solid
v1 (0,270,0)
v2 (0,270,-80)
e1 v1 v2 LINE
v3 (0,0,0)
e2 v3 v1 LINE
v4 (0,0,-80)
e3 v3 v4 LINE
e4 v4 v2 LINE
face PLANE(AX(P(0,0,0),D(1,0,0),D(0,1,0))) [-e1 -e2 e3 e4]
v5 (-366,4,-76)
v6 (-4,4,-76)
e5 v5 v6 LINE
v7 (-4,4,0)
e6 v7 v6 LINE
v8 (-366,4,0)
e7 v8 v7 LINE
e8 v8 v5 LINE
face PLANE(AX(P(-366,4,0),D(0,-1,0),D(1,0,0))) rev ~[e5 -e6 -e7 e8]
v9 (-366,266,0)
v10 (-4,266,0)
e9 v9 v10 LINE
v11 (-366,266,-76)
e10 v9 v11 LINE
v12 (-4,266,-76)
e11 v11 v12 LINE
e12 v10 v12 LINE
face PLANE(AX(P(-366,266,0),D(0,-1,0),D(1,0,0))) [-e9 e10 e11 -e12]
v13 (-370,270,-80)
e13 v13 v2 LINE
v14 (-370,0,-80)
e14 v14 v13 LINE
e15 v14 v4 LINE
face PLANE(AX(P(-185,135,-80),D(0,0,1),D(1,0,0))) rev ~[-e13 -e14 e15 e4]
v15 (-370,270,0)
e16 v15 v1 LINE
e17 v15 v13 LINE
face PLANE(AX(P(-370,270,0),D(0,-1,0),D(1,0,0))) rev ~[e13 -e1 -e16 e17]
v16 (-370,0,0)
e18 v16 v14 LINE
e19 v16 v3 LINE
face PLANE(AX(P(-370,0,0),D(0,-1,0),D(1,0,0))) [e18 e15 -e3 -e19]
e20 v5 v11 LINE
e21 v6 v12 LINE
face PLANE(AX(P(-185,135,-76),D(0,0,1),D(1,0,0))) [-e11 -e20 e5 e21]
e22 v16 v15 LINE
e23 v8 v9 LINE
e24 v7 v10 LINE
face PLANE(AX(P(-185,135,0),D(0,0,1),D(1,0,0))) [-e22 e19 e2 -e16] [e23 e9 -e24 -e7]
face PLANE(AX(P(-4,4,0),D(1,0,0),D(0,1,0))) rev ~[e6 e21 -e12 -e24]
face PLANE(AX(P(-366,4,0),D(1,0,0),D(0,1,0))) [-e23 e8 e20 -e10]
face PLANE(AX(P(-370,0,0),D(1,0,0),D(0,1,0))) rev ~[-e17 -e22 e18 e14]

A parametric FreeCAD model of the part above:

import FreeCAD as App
import Part
import Sketcher

V = App.Vector
Q = App.Units.Quantity

doc = App.newDocument("Part")
params = doc.addObject("Spreadsheet::Sheet", "Params")
for row, (alias, value) in enumerate([
    ("sketch1_width", "370 mm"),
    ("sketch1_height", "270 mm"),
    ("pad1_length", "80 mm"),
    ("sketch2_width", "362 mm"),
    ("sketch2_height", "262 mm"),
    ("pocket1_length", "76 mm"),
], start=1):
    params.set(f"A{row}", alias)
    params.set(f"B{row}", "=" + value)
    params.setAlias(f"B{row}", alias)

body = doc.addObject("PartDesign::Body", "Body")

# Sketch on XY plane
sketch1 = doc.addObject("Sketcher::SketchObject", "Sketch")
body.addObject(sketch1)
sketch1.AttachmentSupport = (doc.XY_Plane, [""])
sketch1.MapMode = "FlatFace"
sketch1.addGeometry(Part.LineSegment(V(-370, 270, 0), V(-370, 0, 0)), False)
sketch1.addGeometry(Part.LineSegment(V(-370, 0, 0), V(0, 0, 0)), False)
sketch1.addGeometry(Part.LineSegment(V(0, 0, 0), V(0, 270, 0)), False)
sketch1.addGeometry(Part.LineSegment(V(0, 270, 0), V(-370, 270, 0)), False)
sketch1.addConstraint(Sketcher.Constraint("Coincident", 0, 2, 1, 1))
sketch1.addConstraint(Sketcher.Constraint("Coincident", 1, 2, 2, 1))
sketch1.addConstraint(Sketcher.Constraint("Coincident", 2, 2, 3, 1))
sketch1.addConstraint(Sketcher.Constraint("Coincident", 3, 2, 0, 1))
sketch1.addConstraint(Sketcher.Constraint("Vertical", 0))
sketch1.addConstraint(Sketcher.Constraint("Horizontal", 1))
sketch1.addConstraint(Sketcher.Constraint("Vertical", 2))
sketch1.addConstraint(Sketcher.Constraint("Horizontal", 3))
sketch1.addConstraint(Sketcher.Constraint("Coincident", 1, 2, -1, 1))
sketch1.addConstraint(Sketcher.Constraint("DistanceX", 1, 1, 1, 2, Q("370 mm")))
sketch1.addConstraint(Sketcher.Constraint("DistanceY", 0, 2, 0, 1, Q("270 mm")))
sketch1.setExpression("Constraints[9]", "Params.sketch1_width")
sketch1.setExpression("Constraints[10]", "Params.sketch1_height")
pad1 = doc.addObject("PartDesign::Pad", "Pad")
body.addObject(pad1)
pad1.Profile = sketch1
pad1.setExpression("Length", "Params.pad1_length")
pad1.Reversed = True

# Sketch on XY plane
sketch2 = doc.addObject("Sketcher::SketchObject", "Sketch001")
body.addObject(sketch2)
sketch2.AttachmentSupport = (doc.XY_Plane, [""])
sketch2.MapMode = "FlatFace"
sketch2.addGeometry(Part.LineSegment(V(-366, 266, 0), V(-366, 4, 0)), False)
sketch2.addGeometry(Part.LineSegment(V(-366, 4, 0), V(-4, 4, 0)), False)
sketch2.addGeometry(Part.LineSegment(V(-4, 4, 0), V(-4, 266, 0)), False)
sketch2.addGeometry(Part.LineSegment(V(-4, 266, 0), V(-366, 266, 0)), False)
sketch2.addConstraint(Sketcher.Constraint("Coincident", 0, 2, 1, 1))
sketch2.addConstraint(Sketcher.Constraint("Coincident", 1, 2, 2, 1))
sketch2.addConstraint(Sketcher.Constraint("Coincident", 2, 2, 3, 1))
sketch2.addConstraint(Sketcher.Constraint("Coincident", 3, 2, 0, 1))
sketch2.addConstraint(Sketcher.Constraint("Vertical", 0))
sketch2.addConstraint(Sketcher.Constraint("Horizontal", 1))
sketch2.addConstraint(Sketcher.Constraint("Vertical", 2))
sketch2.addConstraint(Sketcher.Constraint("Horizontal", 3))
sketch2.addConstraint(Sketcher.Constraint("DistanceX", 1, 1, 1, 2, Q("362 mm")))
sketch2.addConstraint(Sketcher.Constraint("DistanceY", 0, 2, 0, 1, Q("262 mm")))
sketch2.addConstraint(Sketcher.Constraint("DistanceX", 0, 2, -1, 1, Q("366 mm")))
sketch2.addConstraint(Sketcher.Constraint("DistanceY", -1, 1, 0, 2, Q("4 mm")))
sketch2.setExpression("Constraints[8]", "Params.sketch2_width")
sketch2.setExpression("Constraints[9]", "Params.sketch2_height")
pocket1 = doc.addObject("PartDesign::Pocket", "Pocket")
body.addObject(pocket1)
pocket1.Profile = sketch2
pocket1.setExpression("Length", "Params.pocket1_length")

doc.recompute()
